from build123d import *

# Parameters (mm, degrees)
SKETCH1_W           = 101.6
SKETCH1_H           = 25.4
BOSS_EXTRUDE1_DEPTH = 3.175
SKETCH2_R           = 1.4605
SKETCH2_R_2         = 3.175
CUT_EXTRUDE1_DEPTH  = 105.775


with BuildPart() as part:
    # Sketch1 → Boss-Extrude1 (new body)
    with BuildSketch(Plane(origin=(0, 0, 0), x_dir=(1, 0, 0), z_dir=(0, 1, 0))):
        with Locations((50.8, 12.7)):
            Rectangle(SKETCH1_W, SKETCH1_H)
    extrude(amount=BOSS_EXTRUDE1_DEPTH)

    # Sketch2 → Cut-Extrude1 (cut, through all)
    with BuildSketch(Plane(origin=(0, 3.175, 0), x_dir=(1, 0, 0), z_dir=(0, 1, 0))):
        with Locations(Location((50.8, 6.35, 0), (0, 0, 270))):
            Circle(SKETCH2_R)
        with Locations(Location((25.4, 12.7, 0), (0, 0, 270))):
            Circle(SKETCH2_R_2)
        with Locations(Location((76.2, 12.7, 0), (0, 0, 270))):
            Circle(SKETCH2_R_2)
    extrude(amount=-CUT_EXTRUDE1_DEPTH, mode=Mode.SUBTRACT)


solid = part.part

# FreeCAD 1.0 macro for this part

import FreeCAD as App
import Part
import Sketcher

V = App.Vector
Q = App.Units.Quantity


def add_polygon(sketch, points):
    """Adds a closed chain of lines whose ends are joined by coincident constraints."""
    first, n = sketch.GeometryCount, len(points)
    for a, b in zip(points, points[1:] + points[:1]):
        sketch.addGeometry(Part.LineSegment(App.Vector(*a, 0), App.Vector(*b, 0)), False)
    for i in range(n):
        sketch.addConstraint(Sketcher.Constraint("Coincident", first + i, 2, first + (i + 1) % n, 1))

doc = App.newDocument("Part")
params = doc.addObject("Spreadsheet::Sheet", "Params")
for row, (alias, value) in enumerate([
    ("sketch1_width", "4 in"),
    ("sketch1_height", "1 in"),
    ("pad1_length", "0.125 in"),
    ("sketch2_diameter", "0.25 in"),
    ("sketch2_diameter2", "0.115 in"),
], start=1):
    params.set(f"A{row}", alias)
    params.set(f"B{row}", "=" + value)
    params.setAlias(f"B{row}", alias)

body = doc.addObject("PartDesign::Body", "Body")

# Sketch on XZ plane
sketch1 = body.newObject("Sketcher::SketchObject", "Sketch")
sketch1.AttachmentSupport = (doc.getObject("XZ_Plane"), [""])
sketch1.MapMode = "FlatFace"
add_polygon(sketch1, [(0, -25.4), (0, 0), (101.6, 0), (101.6, -25.4)])  # lines 0-3
sketch1.addConstraint(Sketcher.Constraint("Vertical", 0))
sketch1.addConstraint(Sketcher.Constraint("Horizontal", 1))
sketch1.addConstraint(Sketcher.Constraint("Vertical", 2))
sketch1.addConstraint(Sketcher.Constraint("Horizontal", 3))
sketch1.addConstraint(Sketcher.Constraint("Coincident", 0, 2, -1, 1))
sketch1.addConstraint(Sketcher.Constraint("DistanceX", 1, 1, 1, 2, Q("4 in")))
sketch1.addConstraint(Sketcher.Constraint("DistanceY", 0, 1, 0, 2, Q("1 in")))
sketch1.setExpression("Constraints[9]", "Params.sketch1_width")
sketch1.setExpression("Constraints[10]", "Params.sketch1_height")
pad1 = body.newObject("PartDesign::Pad", "Pad")
pad1.Profile = sketch1
pad1.setExpression("Length", "Params.pad1_length")
pad1.Reversed = True

# Sketch on XZ plane
sketch2 = body.newObject("Sketcher::SketchObject", "Sketch001")
sketch2.AttachmentSupport = (doc.getObject("XZ_Plane"), [""])
sketch2.MapMode = "FlatFace"
sketch2.AttachmentOffset = App.Placement(V(0, 0, -0.125 * 25.4), App.Rotation())
sketch2.addGeometry(Part.Circle(V(50.8, -6.35, 0), V(0, 0, 1), 1.4605), False)
sketch2.addGeometry(Part.Circle(V(25.4, -12.7, 0), V(0, 0, 1), 3.175), False)
sketch2.addGeometry(Part.Circle(V(76.2, -12.7, 0), V(0, 0, 1), 3.175), False)
sketch2.addConstraint(Sketcher.Constraint("Equal", 1, 2))
sketch2.addConstraint(Sketcher.Constraint("Horizontal", 1, 3, 2, 3))
sketch2.addConstraint(Sketcher.Constraint("Diameter", 1, Q("0.25 in")))
sketch2.addConstraint(Sketcher.Constraint("Diameter", 0, Q("0.115 in")))
sketch2.addConstraint(Sketcher.Constraint("DistanceX", -1, 1, 0, 3, Q("2 in")))
sketch2.addConstraint(Sketcher.Constraint("DistanceX", -1, 1, 1, 3, Q("1 in")))
sketch2.addConstraint(Sketcher.Constraint("DistanceX", -1, 1, 2, 3, Q("3 in")))
sketch2.addConstraint(Sketcher.Constraint("DistanceY", 1, 3, -1, 1, Q("0.5 in")))
sketch2.addConstraint(Sketcher.Constraint("DistanceY", 0, 3, -1, 1, Q("0.25 in")))
sketch2.setExpression("Constraints[2]", "Params.sketch2_diameter")
sketch2.setExpression("Constraints[3]", "Params.sketch2_diameter2")
pocket1 = body.newObject("PartDesign::Pocket", "Pocket")
pocket1.Profile = sketch2
pocket1.Type = "ThroughAll"
pocket1.Reversed = True

doc.recompute()
